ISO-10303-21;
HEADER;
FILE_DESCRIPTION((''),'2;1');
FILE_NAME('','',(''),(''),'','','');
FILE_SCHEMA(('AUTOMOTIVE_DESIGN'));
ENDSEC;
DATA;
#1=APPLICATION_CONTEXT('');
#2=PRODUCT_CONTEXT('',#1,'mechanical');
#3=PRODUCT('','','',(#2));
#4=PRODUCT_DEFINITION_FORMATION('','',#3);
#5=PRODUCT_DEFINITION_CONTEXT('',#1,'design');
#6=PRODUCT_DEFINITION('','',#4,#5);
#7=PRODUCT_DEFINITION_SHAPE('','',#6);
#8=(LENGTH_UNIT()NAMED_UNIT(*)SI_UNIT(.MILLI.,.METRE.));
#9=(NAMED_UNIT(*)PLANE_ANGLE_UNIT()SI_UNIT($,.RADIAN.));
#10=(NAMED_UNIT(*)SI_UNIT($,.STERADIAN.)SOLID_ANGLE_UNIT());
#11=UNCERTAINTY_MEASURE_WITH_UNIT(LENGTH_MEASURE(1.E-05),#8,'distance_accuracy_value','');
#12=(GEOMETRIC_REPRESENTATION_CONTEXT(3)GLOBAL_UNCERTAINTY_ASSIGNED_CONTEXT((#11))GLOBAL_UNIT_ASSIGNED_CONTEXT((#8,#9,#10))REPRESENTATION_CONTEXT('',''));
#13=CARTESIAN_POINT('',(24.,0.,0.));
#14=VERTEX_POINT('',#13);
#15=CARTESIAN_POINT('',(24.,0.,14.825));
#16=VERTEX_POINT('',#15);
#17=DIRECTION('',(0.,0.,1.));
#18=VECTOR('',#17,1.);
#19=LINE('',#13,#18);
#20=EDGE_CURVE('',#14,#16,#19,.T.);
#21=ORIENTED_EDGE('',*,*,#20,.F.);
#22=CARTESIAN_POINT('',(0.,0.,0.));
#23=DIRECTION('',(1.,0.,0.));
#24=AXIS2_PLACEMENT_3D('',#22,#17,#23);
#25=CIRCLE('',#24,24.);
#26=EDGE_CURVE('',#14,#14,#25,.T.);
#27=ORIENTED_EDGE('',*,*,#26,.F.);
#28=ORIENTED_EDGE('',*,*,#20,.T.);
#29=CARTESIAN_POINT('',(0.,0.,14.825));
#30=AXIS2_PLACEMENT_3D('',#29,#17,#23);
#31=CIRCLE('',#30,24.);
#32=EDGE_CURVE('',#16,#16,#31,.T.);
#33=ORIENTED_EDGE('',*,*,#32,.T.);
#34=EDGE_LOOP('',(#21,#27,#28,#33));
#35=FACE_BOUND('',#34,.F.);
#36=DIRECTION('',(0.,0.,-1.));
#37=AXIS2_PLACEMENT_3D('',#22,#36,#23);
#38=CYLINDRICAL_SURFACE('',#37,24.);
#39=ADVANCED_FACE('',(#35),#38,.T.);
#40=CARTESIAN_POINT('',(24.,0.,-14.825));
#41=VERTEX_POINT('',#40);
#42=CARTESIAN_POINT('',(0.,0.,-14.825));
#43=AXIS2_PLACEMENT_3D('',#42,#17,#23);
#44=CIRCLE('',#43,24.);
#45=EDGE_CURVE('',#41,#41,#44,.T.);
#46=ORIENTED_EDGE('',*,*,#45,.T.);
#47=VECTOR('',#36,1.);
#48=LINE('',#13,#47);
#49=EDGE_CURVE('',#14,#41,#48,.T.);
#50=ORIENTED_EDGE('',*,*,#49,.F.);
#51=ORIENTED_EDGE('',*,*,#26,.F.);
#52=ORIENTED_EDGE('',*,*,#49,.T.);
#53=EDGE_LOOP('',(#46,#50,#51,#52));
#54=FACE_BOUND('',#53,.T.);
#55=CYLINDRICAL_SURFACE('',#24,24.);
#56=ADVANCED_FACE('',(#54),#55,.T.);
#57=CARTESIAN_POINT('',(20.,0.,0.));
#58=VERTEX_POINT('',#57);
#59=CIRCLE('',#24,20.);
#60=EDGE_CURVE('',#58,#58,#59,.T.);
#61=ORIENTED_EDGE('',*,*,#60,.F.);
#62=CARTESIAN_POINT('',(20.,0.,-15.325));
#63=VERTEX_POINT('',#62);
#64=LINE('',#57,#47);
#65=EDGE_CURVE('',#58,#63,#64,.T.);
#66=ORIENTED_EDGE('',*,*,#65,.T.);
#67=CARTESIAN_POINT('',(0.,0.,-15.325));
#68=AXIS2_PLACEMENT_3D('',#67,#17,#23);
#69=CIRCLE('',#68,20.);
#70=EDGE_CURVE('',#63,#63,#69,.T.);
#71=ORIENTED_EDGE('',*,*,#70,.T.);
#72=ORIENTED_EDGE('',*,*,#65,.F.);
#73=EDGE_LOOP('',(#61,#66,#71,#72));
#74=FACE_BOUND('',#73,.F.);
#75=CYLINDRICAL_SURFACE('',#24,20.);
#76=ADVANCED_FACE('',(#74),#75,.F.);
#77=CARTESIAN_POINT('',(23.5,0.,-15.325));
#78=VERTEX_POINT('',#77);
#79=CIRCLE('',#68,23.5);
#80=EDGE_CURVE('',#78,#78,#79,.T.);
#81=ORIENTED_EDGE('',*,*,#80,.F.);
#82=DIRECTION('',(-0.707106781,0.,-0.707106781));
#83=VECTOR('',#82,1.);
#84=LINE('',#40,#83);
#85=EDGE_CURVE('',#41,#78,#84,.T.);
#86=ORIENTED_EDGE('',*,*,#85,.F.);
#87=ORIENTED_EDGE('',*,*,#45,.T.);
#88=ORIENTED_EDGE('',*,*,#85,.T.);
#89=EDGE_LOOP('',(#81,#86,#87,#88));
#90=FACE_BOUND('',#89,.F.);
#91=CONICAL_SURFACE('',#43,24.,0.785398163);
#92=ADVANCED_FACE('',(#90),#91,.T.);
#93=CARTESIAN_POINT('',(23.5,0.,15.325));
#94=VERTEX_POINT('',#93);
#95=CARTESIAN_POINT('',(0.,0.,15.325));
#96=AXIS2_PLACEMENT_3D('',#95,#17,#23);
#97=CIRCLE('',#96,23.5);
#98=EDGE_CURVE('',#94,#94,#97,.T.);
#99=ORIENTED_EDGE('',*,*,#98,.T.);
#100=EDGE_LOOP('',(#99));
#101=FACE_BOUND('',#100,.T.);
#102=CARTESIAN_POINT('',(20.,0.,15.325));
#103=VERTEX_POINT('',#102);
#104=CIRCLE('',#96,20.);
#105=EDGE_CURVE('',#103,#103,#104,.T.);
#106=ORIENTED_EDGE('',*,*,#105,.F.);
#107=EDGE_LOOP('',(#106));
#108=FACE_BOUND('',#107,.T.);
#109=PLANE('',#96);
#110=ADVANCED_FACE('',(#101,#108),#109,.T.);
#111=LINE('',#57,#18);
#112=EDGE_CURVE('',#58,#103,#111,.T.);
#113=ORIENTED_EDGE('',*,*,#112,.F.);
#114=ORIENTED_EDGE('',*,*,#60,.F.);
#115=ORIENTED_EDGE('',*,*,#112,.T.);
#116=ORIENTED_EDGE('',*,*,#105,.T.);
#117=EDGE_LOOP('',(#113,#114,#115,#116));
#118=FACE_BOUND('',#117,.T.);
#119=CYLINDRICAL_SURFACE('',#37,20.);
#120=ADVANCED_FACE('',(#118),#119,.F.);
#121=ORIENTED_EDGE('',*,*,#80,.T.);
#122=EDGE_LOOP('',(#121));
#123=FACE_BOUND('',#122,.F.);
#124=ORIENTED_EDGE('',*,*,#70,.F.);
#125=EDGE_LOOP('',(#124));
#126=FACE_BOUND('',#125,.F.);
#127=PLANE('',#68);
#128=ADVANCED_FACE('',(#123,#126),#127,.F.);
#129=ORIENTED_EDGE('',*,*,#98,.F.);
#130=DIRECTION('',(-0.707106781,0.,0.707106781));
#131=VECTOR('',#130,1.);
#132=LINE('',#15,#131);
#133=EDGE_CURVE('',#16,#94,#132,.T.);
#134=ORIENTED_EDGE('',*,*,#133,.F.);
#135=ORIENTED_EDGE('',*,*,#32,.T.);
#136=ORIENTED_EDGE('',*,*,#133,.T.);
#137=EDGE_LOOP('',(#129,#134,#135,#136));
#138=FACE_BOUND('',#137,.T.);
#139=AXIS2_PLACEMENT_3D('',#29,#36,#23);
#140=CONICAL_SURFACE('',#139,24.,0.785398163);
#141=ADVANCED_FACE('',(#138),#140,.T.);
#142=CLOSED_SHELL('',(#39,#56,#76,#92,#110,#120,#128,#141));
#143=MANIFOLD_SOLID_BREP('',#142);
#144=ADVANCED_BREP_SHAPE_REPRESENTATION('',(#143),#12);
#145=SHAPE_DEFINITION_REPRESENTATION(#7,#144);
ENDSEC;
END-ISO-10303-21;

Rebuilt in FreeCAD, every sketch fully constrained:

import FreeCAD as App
import Part
import Sketcher

V = App.Vector


def edges_at(feature, points):
    """Names of the edges that pass closest to the given points."""
    edges = feature.Shape.Edges
    near = lambda p: min(range(len(edges)), key=lambda i: edges[i].distToShape(Part.Vertex(*p))[0])
    return sorted({f"Edge{near(p) + 1}" for p in points})

doc = App.newDocument("Part")
body = doc.addObject("PartDesign::Body", "Body")

sketch1 = body.newObject("Sketcher::SketchObject", "Sketch")
sketch1.AttachmentSupport = (doc.getObject("XY_Plane"), [""])
sketch1.MapMode = "FlatFace"
sketch1.addGeometry(Part.Circle(V(0, 0, 0), V(0, 0, 1), 24), False)
sketch1.addGeometry(Part.Circle(V(0, 0, 0), V(0, 0, 1), 20), False)
sketch1.addConstraint(Sketcher.Constraint("Coincident", 0, 3, -1, 1))
sketch1.addConstraint(Sketcher.Constraint("Coincident", 1, 3, -1, 1))
sketch1.addConstraint(Sketcher.Constraint("Diameter", 0, 48.0))
sketch1.addConstraint(Sketcher.Constraint("Diameter", 1, 40.0))
pad1 = body.newObject("PartDesign::Pad", "Pad")
pad1.Profile = sketch1
pad1.Length = 30.65
pad1.Midplane = True
doc.recompute()

chamfer = body.newObject("PartDesign::Chamfer", "Chamfer")
chamfer.Base = (pad1, edges_at(pad1, [(-24, 0, 15.325), (-24, 0, -15.325)]))
chamfer.Size = 0.5

doc.recompute()
